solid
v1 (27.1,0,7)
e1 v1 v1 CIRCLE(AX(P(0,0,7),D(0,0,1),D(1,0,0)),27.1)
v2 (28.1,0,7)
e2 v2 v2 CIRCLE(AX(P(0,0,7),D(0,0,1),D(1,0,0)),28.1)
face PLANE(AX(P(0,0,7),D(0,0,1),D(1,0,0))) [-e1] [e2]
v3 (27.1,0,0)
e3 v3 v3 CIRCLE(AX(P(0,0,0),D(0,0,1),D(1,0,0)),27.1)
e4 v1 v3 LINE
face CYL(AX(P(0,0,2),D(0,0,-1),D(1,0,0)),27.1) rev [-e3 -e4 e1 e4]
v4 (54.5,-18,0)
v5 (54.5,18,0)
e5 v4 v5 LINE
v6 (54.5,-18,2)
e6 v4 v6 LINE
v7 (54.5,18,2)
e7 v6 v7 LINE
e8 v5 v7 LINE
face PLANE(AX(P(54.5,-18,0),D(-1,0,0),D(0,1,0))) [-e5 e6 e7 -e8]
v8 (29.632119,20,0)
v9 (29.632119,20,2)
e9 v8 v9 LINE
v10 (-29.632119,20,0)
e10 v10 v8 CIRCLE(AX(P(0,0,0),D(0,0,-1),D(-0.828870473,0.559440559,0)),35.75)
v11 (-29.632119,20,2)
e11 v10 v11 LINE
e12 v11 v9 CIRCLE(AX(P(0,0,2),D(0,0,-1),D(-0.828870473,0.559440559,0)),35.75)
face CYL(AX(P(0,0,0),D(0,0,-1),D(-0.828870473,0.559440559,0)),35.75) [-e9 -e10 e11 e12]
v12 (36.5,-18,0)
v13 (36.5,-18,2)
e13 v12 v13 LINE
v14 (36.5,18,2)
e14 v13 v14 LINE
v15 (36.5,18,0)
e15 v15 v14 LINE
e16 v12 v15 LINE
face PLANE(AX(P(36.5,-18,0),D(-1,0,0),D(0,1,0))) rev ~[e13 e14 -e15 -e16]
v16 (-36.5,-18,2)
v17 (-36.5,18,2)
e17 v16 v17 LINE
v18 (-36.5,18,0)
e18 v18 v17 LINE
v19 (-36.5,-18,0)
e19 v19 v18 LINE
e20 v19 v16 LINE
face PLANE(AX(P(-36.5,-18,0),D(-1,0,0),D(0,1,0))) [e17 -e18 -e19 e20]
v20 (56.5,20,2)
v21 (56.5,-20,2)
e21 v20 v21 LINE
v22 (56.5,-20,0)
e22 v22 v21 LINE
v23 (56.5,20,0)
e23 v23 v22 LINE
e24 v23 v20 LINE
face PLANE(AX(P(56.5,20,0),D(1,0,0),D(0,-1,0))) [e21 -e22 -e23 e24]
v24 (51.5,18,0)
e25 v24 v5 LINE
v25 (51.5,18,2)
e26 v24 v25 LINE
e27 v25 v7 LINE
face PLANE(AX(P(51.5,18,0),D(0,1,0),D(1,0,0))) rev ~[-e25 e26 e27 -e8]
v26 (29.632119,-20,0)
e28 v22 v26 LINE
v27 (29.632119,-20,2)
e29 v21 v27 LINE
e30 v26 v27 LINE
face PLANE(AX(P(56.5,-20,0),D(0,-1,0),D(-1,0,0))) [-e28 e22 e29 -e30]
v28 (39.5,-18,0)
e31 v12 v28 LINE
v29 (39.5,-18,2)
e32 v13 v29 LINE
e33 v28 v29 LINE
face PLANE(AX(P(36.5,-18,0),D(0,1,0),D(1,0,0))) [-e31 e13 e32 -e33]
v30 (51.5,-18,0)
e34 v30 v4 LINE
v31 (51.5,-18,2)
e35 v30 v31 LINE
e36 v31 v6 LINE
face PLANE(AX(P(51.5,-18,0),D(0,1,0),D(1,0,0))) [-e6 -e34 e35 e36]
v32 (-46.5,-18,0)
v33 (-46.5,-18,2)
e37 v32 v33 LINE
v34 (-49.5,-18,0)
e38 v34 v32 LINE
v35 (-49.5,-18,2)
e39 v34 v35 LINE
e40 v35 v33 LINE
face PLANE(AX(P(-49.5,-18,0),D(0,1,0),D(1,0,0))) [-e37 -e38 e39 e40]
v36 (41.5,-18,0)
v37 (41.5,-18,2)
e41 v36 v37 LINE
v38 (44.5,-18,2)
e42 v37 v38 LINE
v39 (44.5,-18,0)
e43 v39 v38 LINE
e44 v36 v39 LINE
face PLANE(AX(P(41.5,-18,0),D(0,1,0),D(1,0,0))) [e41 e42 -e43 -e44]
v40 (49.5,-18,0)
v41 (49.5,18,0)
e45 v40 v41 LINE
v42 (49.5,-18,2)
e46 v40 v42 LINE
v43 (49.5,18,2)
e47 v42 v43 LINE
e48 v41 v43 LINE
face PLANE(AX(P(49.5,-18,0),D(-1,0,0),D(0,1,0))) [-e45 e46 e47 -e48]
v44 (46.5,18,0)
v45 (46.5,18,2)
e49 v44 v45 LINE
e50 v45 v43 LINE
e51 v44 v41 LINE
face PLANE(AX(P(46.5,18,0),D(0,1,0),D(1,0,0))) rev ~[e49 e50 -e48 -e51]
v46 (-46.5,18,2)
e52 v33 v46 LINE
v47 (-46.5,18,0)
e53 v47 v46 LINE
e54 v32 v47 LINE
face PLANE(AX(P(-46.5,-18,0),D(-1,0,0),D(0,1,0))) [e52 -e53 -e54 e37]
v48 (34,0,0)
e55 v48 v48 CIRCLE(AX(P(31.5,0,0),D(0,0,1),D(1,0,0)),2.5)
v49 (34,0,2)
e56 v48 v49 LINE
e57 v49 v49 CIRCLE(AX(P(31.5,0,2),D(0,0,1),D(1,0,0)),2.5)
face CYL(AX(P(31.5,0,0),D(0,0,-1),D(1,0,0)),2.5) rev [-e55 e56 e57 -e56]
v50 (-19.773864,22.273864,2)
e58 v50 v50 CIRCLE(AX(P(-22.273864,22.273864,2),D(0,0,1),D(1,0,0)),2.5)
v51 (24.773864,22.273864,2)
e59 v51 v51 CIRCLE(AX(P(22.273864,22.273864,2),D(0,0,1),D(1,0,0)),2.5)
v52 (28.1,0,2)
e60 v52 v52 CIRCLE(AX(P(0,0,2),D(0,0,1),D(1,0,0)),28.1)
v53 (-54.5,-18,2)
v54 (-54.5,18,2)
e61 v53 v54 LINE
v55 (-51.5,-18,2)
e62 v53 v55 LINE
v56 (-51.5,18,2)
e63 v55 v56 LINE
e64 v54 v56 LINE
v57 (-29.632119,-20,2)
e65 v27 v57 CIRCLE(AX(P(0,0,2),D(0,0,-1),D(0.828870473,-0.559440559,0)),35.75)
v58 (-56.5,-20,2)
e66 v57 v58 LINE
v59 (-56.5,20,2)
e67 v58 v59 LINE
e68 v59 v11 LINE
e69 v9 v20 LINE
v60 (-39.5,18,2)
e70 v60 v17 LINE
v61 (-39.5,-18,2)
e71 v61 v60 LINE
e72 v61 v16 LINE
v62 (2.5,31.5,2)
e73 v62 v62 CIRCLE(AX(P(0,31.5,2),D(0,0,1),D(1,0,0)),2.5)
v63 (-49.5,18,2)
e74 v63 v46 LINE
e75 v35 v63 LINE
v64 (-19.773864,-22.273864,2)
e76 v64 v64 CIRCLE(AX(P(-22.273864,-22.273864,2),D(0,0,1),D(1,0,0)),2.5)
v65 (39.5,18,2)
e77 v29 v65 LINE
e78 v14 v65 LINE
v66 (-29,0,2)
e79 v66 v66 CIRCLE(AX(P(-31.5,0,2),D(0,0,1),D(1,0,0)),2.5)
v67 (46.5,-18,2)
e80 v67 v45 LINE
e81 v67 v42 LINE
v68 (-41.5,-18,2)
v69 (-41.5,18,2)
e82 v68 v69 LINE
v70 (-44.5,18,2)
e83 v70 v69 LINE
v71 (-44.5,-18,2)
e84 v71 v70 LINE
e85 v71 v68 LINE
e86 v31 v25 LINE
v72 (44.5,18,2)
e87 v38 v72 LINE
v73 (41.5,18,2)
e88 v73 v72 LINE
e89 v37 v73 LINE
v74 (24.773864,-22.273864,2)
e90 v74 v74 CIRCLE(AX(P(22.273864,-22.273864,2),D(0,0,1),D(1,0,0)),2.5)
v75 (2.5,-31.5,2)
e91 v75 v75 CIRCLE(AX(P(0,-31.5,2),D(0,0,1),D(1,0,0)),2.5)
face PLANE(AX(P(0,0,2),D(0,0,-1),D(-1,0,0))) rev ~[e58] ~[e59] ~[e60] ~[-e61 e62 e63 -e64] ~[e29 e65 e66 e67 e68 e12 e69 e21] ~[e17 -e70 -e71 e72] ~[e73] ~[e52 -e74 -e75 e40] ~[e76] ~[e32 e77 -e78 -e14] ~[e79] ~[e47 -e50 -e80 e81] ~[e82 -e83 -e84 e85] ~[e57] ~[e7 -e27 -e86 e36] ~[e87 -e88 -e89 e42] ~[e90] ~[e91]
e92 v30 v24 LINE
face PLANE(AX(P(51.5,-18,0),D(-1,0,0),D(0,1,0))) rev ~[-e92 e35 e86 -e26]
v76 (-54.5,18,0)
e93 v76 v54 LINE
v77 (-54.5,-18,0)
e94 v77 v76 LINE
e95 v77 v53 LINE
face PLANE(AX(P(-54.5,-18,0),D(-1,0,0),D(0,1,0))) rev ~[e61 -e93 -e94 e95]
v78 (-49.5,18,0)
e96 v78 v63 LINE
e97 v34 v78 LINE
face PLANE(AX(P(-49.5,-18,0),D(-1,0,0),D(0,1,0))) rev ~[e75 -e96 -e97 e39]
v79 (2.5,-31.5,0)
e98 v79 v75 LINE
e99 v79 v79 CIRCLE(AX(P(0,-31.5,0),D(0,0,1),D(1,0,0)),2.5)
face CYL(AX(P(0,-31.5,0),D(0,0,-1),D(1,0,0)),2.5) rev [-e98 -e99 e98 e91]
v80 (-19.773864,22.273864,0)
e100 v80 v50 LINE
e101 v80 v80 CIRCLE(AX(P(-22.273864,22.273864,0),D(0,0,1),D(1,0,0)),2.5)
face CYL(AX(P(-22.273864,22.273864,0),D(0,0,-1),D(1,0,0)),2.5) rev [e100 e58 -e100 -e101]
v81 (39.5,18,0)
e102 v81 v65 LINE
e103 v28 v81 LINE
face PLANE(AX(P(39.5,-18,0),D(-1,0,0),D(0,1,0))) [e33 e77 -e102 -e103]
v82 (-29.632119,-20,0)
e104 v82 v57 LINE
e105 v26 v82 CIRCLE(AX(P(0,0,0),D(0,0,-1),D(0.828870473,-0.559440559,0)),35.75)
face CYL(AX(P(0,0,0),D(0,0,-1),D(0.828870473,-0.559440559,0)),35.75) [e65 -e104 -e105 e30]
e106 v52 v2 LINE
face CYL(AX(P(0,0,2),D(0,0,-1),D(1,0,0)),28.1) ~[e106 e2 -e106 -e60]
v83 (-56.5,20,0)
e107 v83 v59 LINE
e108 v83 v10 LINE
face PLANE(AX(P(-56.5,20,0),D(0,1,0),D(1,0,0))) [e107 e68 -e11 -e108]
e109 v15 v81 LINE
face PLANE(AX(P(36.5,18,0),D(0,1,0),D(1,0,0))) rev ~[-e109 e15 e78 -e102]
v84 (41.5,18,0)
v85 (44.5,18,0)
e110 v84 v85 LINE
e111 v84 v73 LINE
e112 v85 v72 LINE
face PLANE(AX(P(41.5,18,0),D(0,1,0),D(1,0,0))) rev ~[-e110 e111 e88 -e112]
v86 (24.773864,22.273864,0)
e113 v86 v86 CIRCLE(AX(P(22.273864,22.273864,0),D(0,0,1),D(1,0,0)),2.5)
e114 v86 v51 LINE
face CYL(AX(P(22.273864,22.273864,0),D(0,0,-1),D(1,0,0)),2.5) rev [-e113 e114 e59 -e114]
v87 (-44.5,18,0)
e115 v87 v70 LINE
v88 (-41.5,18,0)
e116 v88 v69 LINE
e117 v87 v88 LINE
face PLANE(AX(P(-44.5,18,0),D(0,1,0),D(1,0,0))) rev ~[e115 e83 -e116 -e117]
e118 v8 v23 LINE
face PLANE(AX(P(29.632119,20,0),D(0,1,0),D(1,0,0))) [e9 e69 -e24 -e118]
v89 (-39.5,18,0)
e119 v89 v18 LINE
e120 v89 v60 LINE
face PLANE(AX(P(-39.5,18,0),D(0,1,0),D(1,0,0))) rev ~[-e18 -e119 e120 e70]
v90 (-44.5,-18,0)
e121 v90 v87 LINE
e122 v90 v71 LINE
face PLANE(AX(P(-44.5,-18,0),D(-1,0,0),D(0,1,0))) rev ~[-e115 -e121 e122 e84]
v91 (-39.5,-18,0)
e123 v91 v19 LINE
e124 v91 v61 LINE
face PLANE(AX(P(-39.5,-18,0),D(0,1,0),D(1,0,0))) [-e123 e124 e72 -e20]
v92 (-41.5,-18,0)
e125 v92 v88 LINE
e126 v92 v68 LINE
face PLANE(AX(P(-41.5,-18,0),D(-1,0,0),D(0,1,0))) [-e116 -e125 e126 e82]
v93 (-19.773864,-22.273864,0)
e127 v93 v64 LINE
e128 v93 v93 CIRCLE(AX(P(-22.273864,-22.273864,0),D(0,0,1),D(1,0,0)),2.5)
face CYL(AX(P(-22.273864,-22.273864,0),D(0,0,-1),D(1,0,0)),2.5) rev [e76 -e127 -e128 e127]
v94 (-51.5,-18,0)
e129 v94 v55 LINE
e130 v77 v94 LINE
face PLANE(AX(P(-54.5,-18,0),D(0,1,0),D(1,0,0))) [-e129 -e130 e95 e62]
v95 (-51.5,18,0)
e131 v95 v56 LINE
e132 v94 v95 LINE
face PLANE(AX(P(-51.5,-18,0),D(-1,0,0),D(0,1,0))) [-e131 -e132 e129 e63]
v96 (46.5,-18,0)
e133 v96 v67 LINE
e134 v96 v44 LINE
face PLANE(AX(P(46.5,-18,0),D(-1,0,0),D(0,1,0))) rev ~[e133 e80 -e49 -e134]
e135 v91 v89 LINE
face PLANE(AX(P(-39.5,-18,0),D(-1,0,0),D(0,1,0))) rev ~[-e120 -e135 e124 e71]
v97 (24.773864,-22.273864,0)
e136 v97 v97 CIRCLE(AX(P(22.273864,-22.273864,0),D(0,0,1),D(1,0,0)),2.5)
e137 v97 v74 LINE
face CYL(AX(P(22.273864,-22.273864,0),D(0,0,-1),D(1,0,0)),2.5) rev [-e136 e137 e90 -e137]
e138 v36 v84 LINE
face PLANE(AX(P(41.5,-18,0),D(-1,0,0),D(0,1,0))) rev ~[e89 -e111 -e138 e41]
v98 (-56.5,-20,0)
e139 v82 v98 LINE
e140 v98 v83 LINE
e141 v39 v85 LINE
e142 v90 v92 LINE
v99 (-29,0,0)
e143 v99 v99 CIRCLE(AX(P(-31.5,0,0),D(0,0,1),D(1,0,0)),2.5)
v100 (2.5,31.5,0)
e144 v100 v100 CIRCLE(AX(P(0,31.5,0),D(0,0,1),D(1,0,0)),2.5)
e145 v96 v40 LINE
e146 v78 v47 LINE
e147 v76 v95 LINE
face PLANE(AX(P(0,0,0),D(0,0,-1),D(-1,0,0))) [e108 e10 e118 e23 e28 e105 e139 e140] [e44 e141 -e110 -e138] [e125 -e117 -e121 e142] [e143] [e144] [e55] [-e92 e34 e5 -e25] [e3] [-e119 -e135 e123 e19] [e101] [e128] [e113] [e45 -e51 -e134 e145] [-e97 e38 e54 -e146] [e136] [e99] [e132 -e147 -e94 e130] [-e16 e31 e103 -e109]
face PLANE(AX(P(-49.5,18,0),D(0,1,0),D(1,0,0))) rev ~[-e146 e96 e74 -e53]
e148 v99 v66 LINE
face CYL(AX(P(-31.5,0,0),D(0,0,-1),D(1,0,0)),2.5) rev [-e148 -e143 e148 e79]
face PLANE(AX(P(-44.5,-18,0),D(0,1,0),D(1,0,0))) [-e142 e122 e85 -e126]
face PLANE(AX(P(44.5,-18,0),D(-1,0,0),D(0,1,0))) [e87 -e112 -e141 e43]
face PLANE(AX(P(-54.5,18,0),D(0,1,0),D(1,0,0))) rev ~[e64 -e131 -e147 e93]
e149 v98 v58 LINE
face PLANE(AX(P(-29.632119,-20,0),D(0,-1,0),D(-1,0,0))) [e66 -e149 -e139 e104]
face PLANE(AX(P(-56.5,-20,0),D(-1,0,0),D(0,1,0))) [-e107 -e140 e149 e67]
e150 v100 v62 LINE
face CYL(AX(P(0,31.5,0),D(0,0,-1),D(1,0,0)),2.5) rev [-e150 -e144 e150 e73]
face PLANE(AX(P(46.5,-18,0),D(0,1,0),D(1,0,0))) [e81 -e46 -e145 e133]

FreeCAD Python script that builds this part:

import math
import FreeCAD as App
import Part
import Sketcher

doc = App.newDocument("Part")
body = doc.addObject("PartDesign::Body", "Body")

# Sketch on XY plane
sketch1 = doc.addObject("Sketcher::SketchObject", "Sketch")
body.addObject(sketch1)
sketch1.AttachmentSupport = (doc.XY_Plane, [""])
sketch1.MapMode = "FlatFace"
sketch1.addGeometry([
    Part.LineSegment(App.Vector(-29.6, 20, 0), App.Vector(-56.5, 20, 0)),  # 0
    Part.LineSegment(App.Vector(-56.5, 20, 0), App.Vector(-56.5, -20, 0)),  # 1
    Part.LineSegment(App.Vector(-56.5, -20, 0), App.Vector(-29.6, -20, 0)),  # 2
    Part.ArcOfCircle(Part.Circle(App.Vector(0, 0, 0), App.Vector(0, 0, 1), 35.8), math.radians(-146), math.radians(-34)),  # 3
    Part.LineSegment(App.Vector(29.6, -20, 0), App.Vector(56.5, -20, 0)),  # 4
    Part.LineSegment(App.Vector(56.5, -20, 0), App.Vector(56.5, 20, 0)),  # 5
    Part.LineSegment(App.Vector(56.5, 20, 0), App.Vector(29.6, 20, 0)),  # 6
    Part.ArcOfCircle(Part.Circle(App.Vector(0, 0, 0), App.Vector(0, 0, 1), 35.8), math.radians(34), math.radians(146)),  # 7
    Part.Circle(App.Vector(22.3, -22.3, 0), App.Vector(0, 0, 1), 2.5),  # 8
    Part.Circle(App.Vector(0, -31.5, 0), App.Vector(0, 0, 1), 2.5),  # 9
    Part.Circle(App.Vector(-22.3, -22.3, 0), App.Vector(0, 0, 1), 2.5),  # 10
    Part.LineSegment(App.Vector(51.5, -18, 0), App.Vector(51.5, 18, 0)),  # 11
    Part.LineSegment(App.Vector(51.5, 18, 0), App.Vector(54.5, 18, 0)),  # 12
    Part.LineSegment(App.Vector(54.5, 18, 0), App.Vector(54.5, -18, 0)),  # 13
    Part.LineSegment(App.Vector(54.5, -18, 0), App.Vector(51.5, -18, 0)),  # 14
    Part.LineSegment(App.Vector(46.5, -18, 0), App.Vector(46.5, 18, 0)),  # 15
    Part.LineSegment(App.Vector(46.5, 18, 0), App.Vector(49.5, 18, 0)),  # 16
    Part.LineSegment(App.Vector(49.5, 18, 0), App.Vector(49.5, -18, 0)),  # 17
    Part.LineSegment(App.Vector(49.5, -18, 0), App.Vector(46.5, -18, 0)),  # 18
    Part.LineSegment(App.Vector(41.5, -18, 0), App.Vector(41.5, 18, 0)),  # 19
    Part.LineSegment(App.Vector(41.5, 18, 0), App.Vector(44.5, 18, 0)),  # 20
    Part.LineSegment(App.Vector(44.5, 18, 0), App.Vector(44.5, -18, 0)),  # 21
    Part.LineSegment(App.Vector(44.5, -18, 0), App.Vector(41.5, -18, 0)),  # 22
    Part.LineSegment(App.Vector(36.5, -18, 0), App.Vector(36.5, 18, 0)),  # 23
    Part.LineSegment(App.Vector(36.5, 18, 0), App.Vector(39.5, 18, 0)),  # 24
    Part.LineSegment(App.Vector(39.5, 18, 0), App.Vector(39.5, -18, 0)),  # 25
    Part.LineSegment(App.Vector(39.5, -18, 0), App.Vector(36.5, -18, 0)),  # 26
    Part.Circle(App.Vector(31.5, 0, 0), App.Vector(0, 0, 1), 2.5),  # 27
    Part.Circle(App.Vector(22.3, 22.3, 0), App.Vector(0, 0, 1), 2.5),  # 28
    Part.Circle(App.Vector(0, 0, 0), App.Vector(0, 0, 1), 27.1),  # 29
    Part.Circle(App.Vector(-31.5, 0, 0), App.Vector(0, 0, 1), 2.5),  # 30
    Part.LineSegment(App.Vector(-39.5, -18, 0), App.Vector(-39.5, 18, 0)),  # 31
    Part.LineSegment(App.Vector(-39.5, 18, 0), App.Vector(-36.5, 18, 0)),  # 32
    Part.LineSegment(App.Vector(-36.5, 18, 0), App.Vector(-36.5, -18, 0)),  # 33
    Part.LineSegment(App.Vector(-36.5, -18, 0), App.Vector(-39.5, -18, 0)),  # 34
    Part.LineSegment(App.Vector(-44.5, -18, 0), App.Vector(-44.5, 18, 0)),  # 35
    Part.LineSegment(App.Vector(-44.5, 18, 0), App.Vector(-41.5, 18, 0)),  # 36
    Part.LineSegment(App.Vector(-41.5, 18, 0), App.Vector(-41.5, -18, 0)),  # 37
    Part.LineSegment(App.Vector(-41.5, -18, 0), App.Vector(-44.5, -18, 0)),  # 38
    Part.LineSegment(App.Vector(-49.5, -18, 0), App.Vector(-49.5, 18, 0)),  # 39
    Part.LineSegment(App.Vector(-49.5, 18, 0), App.Vector(-46.5, 18, 0)),  # 40
    Part.LineSegment(App.Vector(-46.5, 18, 0), App.Vector(-46.5, -18, 0)),  # 41
    Part.LineSegment(App.Vector(-46.5, -18, 0), App.Vector(-49.5, -18, 0)),  # 42
    Part.LineSegment(App.Vector(-54.5, -18, 0), App.Vector(-54.5, 18, 0)),  # 43
    Part.LineSegment(App.Vector(-54.5, 18, 0), App.Vector(-51.5, 18, 0)),  # 44
    Part.LineSegment(App.Vector(-51.5, 18, 0), App.Vector(-51.5, -18, 0)),  # 45
    Part.LineSegment(App.Vector(-51.5, -18, 0), App.Vector(-54.5, -18, 0)),  # 46
    Part.Circle(App.Vector(-22.3, 22.3, 0), App.Vector(0, 0, 1), 2.5),  # 47
    Part.Circle(App.Vector(0, 31.5, 0), App.Vector(0, 0, 1), 2.5),  # 48
], False)
sketch1.addConstraint([
    Sketcher.Constraint("Coincident", 0, 2, 1, 1),
    Sketcher.Constraint("Coincident", 1, 2, 2, 1),
    Sketcher.Constraint("Coincident", 2, 2, 3, 1),
    Sketcher.Constraint("Coincident", 3, 2, 4, 1),
    Sketcher.Constraint("Coincident", 4, 2, 5, 1),
    Sketcher.Constraint("Coincident", 5, 2, 6, 1),
    Sketcher.Constraint("Coincident", 6, 2, 7, 1),
    Sketcher.Constraint("Coincident", 7, 2, 0, 1),
    Sketcher.Constraint("Coincident", 11, 2, 12, 1),
    Sketcher.Constraint("Coincident", 12, 2, 13, 1),
    Sketcher.Constraint("Coincident", 13, 2, 14, 1),
    Sketcher.Constraint("Coincident", 14, 2, 11, 1),
    Sketcher.Constraint("Coincident", 15, 2, 16, 1),
    Sketcher.Constraint("Coincident", 16, 2, 17, 1),
    Sketcher.Constraint("Coincident", 17, 2, 18, 1),
    Sketcher.Constraint("Coincident", 18, 2, 15, 1),
    Sketcher.Constraint("Coincident", 19, 2, 20, 1),
    Sketcher.Constraint("Coincident", 20, 2, 21, 1),
    Sketcher.Constraint("Coincident", 21, 2, 22, 1),
    Sketcher.Constraint("Coincident", 22, 2, 19, 1),
    Sketcher.Constraint("Coincident", 23, 2, 24, 1),
    Sketcher.Constraint("Coincident", 24, 2, 25, 1),
    Sketcher.Constraint("Coincident", 25, 2, 26, 1),
    Sketcher.Constraint("Coincident", 26, 2, 23, 1),
    Sketcher.Constraint("Coincident", 31, 2, 32, 1),
    Sketcher.Constraint("Coincident", 32, 2, 33, 1),
    Sketcher.Constraint("Coincident", 33, 2, 34, 1),
    Sketcher.Constraint("Coincident", 34, 2, 31, 1),
    Sketcher.Constraint("Coincident", 35, 2, 36, 1),
    Sketcher.Constraint("Coincident", 36, 2, 37, 1),
    Sketcher.Constraint("Coincident", 37, 2, 38, 1),
    Sketcher.Constraint("Coincident", 38, 2, 35, 1),
    Sketcher.Constraint("Coincident", 39, 2, 40, 1),
    Sketcher.Constraint("Coincident", 40, 2, 41, 1),
    Sketcher.Constraint("Coincident", 41, 2, 42, 1),
    Sketcher.Constraint("Coincident", 42, 2, 39, 1),
    Sketcher.Constraint("Coincident", 43, 2, 44, 1),
    Sketcher.Constraint("Coincident", 44, 2, 45, 1),
    Sketcher.Constraint("Coincident", 45, 2, 46, 1),
    Sketcher.Constraint("Coincident", 46, 2, 43, 1),
    Sketcher.Constraint("Horizontal", 0),
    Sketcher.Constraint("Vertical", 1),
    Sketcher.Constraint("Horizontal", 2),
    Sketcher.Constraint("Horizontal", 4),
    Sketcher.Constraint("Vertical", 5),
    Sketcher.Constraint("Horizontal", 6),
    Sketcher.Constraint("Vertical", 11),
    Sketcher.Constraint("Horizontal", 12),
    Sketcher.Constraint("Vertical", 13),
    Sketcher.Constraint("Horizontal", 14),
    Sketcher.Constraint("Vertical", 15),
    Sketcher.Constraint("Horizontal", 16),
    Sketcher.Constraint("Vertical", 17),
    Sketcher.Constraint("Horizontal", 18),
    Sketcher.Constraint("Vertical", 19),
    Sketcher.Constraint("Horizontal", 20),
    Sketcher.Constraint("Vertical", 21),
    Sketcher.Constraint("Horizontal", 22),
    Sketcher.Constraint("Vertical", 23),
    Sketcher.Constraint("Horizontal", 24),
    Sketcher.Constraint("Vertical", 25),
    Sketcher.Constraint("Horizontal", 26),
    Sketcher.Constraint("Vertical", 31),
    Sketcher.Constraint("Horizontal", 32),
    Sketcher.Constraint("Vertical", 33),
    Sketcher.Constraint("Horizontal", 34),
    Sketcher.Constraint("Vertical", 35),
    Sketcher.Constraint("Horizontal", 36),
    Sketcher.Constraint("Vertical", 37),
    Sketcher.Constraint("Horizontal", 38),
    Sketcher.Constraint("Vertical", 39),
    Sketcher.Constraint("Horizontal", 40),
    Sketcher.Constraint("Vertical", 41),
    Sketcher.Constraint("Horizontal", 42),
    Sketcher.Constraint("Vertical", 43),
    Sketcher.Constraint("Horizontal", 44),
    Sketcher.Constraint("Vertical", 45),
    Sketcher.Constraint("Horizontal", 46),
    Sketcher.Constraint("Coincident", 3, 3, -1, 1),
    Sketcher.Constraint("Coincident", 7, 3, -1, 1),
    Sketcher.Constraint("Coincident", 29, 3, -1, 1),
    Sketcher.Constraint("Equal", 3, 7),
    Sketcher.Constraint("Equal", 8, 9),
    Sketcher.Constraint("Equal", 9, 10),
    Sketcher.Constraint("Equal", 10, 27),
    Sketcher.Constraint("Equal", 27, 28),
    Sketcher.Constraint("Equal", 28, 30),
    Sketcher.Constraint("Equal", 30, 47),
    Sketcher.Constraint("Equal", 47, 48),
    Sketcher.Constraint("Symmetric", 10, 3, 28, 3, -1, 1),
    Sketcher.Constraint("Symmetric", 27, 3, 30, 3, -1, 1),
    Sketcher.Constraint("Symmetric", 8, 3, 47, 3, -1, 1),
    Sketcher.Constraint("Symmetric", 9, 3, 48, 3, -1, 1),
    Sketcher.Constraint("Symmetric", 0, 2, 4, 2, -1, 1),
    Sketcher.Constraint("Symmetric", 25, 2, 31, 2, -1, 1),
    Sketcher.Constraint("Symmetric", 23, 2, 33, 2, -1, 1),
    Sketcher.Constraint("Symmetric", 21, 2, 35, 2, -1, 1),
    Sketcher.Constraint("Symmetric", 19, 2, 37, 2, -1, 1),
    Sketcher.Constraint("Symmetric", 17, 2, 39, 2, -1, 1),
    Sketcher.Constraint("Symmetric", 15, 2, 41, 2, -1, 1),
    Sketcher.Constraint("Symmetric", 13, 2, 43, 2, -1, 1),
    Sketcher.Constraint("Symmetric", 11, 2, 45, 2, -1, 1),
    Sketcher.Constraint("Symmetric", 8, 3, 10, 3, -2),
    Sketcher.Constraint("PointOnObject", 9, 3, -2),
    Sketcher.Constraint("PointOnObject", 27, 3, -1),
    Sketcher.Constraint("Horizontal", 2, 2, 3, 2),
    Sketcher.Constraint("Horizontal", 0, 2, 5, 2),
    Sketcher.Constraint("Horizontal", 12, 2, 15, 2),
    Sketcher.Constraint("Horizontal", 14, 2, 17, 2),
    Sketcher.Constraint("Horizontal", 16, 2, 19, 2),
    Sketcher.Constraint("Horizontal", 18, 2, 21, 2),
    Sketcher.Constraint("Horizontal", 20, 2, 23, 2),
    Sketcher.Constraint("Horizontal", 22, 2, 25, 2),
    Sketcher.Constraint("Horizontal", 24, 2, 31, 2),
    Sketcher.Constraint("Equal", 14, 16),
    Sketcher.Constraint("Equal", 18, 20),
    Sketcher.Constraint("Equal", 22, 24),
    Sketcher.Constraint("Diameter", 8, 5.0),
    Sketcher.Constraint("Diameter", 29, 54.2),
    Sketcher.Constraint("DistanceX", 12, 1, 12, 2, 3.0),
    Sketcher.Constraint("DistanceY", 1, 2, 1, 1, 40.0),
    Sketcher.Constraint("DistanceY", 11, 1, 11, 2, 36.0),
    Sketcher.Constraint("Radius", 3, 35.75),
    Sketcher.Constraint("DistanceX", 0, 2, 30, 3, 25.0),
    Sketcher.Constraint("DistanceX", 11, 2, 5, 2, 5.0),
    Sketcher.Constraint("DistanceX", 15, 2, 11, 2, 5.0),
    Sketcher.Constraint("DistanceX", 19, 2, 15, 2, 5.0),
    Sketcher.Constraint("DistanceX", 23, 2, 19, 2, 5.0),
    Sketcher.Constraint("DistanceY", 9, 3, -1, 1, 31.5),
    Sketcher.Constraint("DistanceX", -1, 1, 27, 3, 31.5),
    Sketcher.Constraint("DistanceX", -1, 1, 8, 3, 22.273864),
    Sketcher.Constraint("DistanceY", 8, 3, -1, 1, 22.273864),
])
pad1 = doc.addObject("PartDesign::Pad", "Pad")
body.addObject(pad1)
pad1.Profile = sketch1
pad1.Length = 2

# Sketch on XY plane
sketch2 = doc.addObject("Sketcher::SketchObject", "Sketch001")
body.addObject(sketch2)
sketch2.AttachmentSupport = (doc.XY_Plane, [""])
sketch2.MapMode = "FlatFace"
sketch2.AttachmentOffset = App.Placement(App.Vector(0, 0, 2), App.Rotation())
sketch2.addGeometry([
    Part.Circle(App.Vector(0, 0, 0), App.Vector(0, 0, 1), 28),
    Part.Circle(App.Vector(0, 0, 0), App.Vector(0, 0, 1), 27),
], False)
sketch2.addConstraint([
    Sketcher.Constraint("Coincident", 0, 3, -1, 1),
    Sketcher.Constraint("Coincident", 1, 3, -1, 1),
    Sketcher.Constraint("Diameter", 0, 56.2),
    Sketcher.Constraint("Diameter", 1, 54.2),
])
pad2 = doc.addObject("PartDesign::Pad", "Pad001")
body.addObject(pad2)
pad2.Profile = sketch2
pad2.Length = 5

doc.recompute()
